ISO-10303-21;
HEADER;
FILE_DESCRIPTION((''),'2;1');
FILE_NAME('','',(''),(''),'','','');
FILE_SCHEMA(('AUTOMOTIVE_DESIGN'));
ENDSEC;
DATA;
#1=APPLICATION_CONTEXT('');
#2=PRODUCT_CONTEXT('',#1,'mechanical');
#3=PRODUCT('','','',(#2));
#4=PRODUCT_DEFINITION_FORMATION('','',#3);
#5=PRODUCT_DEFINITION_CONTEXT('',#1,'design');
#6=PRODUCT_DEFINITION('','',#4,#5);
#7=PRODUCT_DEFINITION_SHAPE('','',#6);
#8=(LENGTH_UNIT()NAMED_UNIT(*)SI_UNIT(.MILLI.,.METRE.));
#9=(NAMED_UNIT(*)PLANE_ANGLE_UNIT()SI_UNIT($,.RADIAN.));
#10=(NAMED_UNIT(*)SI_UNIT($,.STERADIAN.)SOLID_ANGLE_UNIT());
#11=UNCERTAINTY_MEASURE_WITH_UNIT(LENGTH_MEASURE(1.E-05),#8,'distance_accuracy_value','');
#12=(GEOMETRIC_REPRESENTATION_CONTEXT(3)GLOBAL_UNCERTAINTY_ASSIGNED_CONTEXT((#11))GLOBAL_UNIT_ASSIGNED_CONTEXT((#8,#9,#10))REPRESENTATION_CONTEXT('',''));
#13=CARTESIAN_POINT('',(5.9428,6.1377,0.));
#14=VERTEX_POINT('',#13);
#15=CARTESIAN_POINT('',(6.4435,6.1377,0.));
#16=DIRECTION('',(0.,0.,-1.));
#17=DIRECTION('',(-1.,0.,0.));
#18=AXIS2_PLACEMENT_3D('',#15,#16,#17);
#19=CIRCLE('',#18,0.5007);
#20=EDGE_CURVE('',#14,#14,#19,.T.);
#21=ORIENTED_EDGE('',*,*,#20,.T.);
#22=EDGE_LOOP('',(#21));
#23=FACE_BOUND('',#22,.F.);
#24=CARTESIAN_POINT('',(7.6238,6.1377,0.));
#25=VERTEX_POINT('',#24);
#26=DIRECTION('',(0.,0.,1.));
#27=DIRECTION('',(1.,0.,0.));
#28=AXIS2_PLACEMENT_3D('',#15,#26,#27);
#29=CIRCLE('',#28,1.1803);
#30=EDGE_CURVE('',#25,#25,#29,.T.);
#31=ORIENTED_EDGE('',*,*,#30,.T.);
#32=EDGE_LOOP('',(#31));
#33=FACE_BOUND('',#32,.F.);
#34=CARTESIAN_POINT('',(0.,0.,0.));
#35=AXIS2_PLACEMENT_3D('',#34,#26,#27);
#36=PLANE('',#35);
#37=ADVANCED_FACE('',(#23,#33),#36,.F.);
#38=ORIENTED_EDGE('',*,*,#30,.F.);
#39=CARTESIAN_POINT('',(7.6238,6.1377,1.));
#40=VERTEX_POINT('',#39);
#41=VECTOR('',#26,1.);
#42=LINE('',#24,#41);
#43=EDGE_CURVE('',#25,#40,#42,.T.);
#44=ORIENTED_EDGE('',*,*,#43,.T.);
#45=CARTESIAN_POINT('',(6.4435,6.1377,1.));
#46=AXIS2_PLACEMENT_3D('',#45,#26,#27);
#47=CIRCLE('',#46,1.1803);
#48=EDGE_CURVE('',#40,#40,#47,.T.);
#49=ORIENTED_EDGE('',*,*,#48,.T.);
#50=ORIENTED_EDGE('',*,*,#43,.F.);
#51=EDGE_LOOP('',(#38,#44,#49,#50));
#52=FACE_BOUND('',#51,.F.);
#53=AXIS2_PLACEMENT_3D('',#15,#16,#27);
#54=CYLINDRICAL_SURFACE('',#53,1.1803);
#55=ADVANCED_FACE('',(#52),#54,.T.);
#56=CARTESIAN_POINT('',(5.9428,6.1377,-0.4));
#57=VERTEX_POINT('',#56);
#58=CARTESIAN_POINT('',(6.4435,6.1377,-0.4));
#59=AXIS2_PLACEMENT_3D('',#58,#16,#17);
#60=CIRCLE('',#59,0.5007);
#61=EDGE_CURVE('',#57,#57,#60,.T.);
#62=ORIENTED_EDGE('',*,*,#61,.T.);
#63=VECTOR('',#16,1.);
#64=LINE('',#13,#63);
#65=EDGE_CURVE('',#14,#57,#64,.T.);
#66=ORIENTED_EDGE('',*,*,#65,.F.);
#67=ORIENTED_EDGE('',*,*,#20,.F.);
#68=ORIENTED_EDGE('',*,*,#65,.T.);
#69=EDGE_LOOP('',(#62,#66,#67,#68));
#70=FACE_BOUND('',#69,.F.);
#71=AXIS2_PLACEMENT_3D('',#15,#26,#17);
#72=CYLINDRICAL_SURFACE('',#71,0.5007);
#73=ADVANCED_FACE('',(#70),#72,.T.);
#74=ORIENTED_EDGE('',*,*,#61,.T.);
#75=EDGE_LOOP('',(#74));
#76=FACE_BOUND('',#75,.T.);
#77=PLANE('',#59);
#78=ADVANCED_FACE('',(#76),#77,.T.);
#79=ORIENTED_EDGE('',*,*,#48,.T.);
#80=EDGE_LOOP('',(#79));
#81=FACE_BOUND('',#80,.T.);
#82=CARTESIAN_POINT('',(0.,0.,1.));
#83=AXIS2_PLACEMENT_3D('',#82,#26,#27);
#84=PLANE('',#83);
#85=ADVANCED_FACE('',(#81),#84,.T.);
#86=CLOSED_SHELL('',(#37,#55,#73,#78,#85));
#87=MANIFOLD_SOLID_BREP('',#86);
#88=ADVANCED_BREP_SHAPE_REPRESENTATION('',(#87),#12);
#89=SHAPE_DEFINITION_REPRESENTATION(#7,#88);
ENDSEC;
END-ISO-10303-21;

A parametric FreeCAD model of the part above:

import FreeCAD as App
import Part
import Sketcher

V = App.Vector
Q = App.Units.Quantity

doc = App.newDocument("Part")
params = doc.addObject("Spreadsheet::Sheet", "Params")
for row, (alias, value) in enumerate([
    ("pad1_length", "1 mm"),
    ("pad2_length", "0.4 mm"),
], start=1):
    params.set(f"A{row}", alias)
    params.set(f"B{row}", "=" + value)
    params.setAlias(f"B{row}", alias)

body = doc.addObject("PartDesign::Body", "Body")

# Sketch on XY plane
sketch1 = body.newObject("Sketcher::SketchObject", "Sketch")
sketch1.AttachmentSupport = (doc.getObject("XY_Plane"), [""])
sketch1.MapMode = "FlatFace"
sketch1.addGeometry(Part.Circle(V(6.4435, 6.1377, 0), V(0, 0, 1), 1.1803), False)
sketch1.addConstraint([
    Sketcher.Constraint("Diameter", 0, Q("2.3606 mm")),
    Sketcher.Constraint("DistanceX", -1, 1, 0, 3, Q("6.4435 mm")),
    Sketcher.Constraint("DistanceY", -1, 1, 0, 3, Q("6.1377 mm")),
])
pad1 = body.newObject("PartDesign::Pad", "Pad")
pad1.Profile = sketch1
pad1.setExpression("Length", "Params.pad1_length")

# Sketch on XY plane
sketch2 = body.newObject("Sketcher::SketchObject", "Sketch001")
sketch2.AttachmentSupport = (doc.getObject("XY_Plane"), [""])
sketch2.MapMode = "FlatFace"
sketch2.addGeometry(Part.Circle(V(6.4435, 6.1377, 0), V(0, 0, 1), 0.5007), False)
sketch2.addConstraint([
    Sketcher.Constraint("Diameter", 0, Q("1.0014 mm")),
    Sketcher.Constraint("DistanceX", -1, 1, 0, 3, Q("6.4435 mm")),
    Sketcher.Constraint("DistanceY", -1, 1, 0, 3, Q("6.1377 mm")),
])
pad2 = body.newObject("PartDesign::Pad", "Pad001")
pad2.Profile = sketch2
pad2.setExpression("Length", "Params.pad2_length")
pad2.Reversed = True

doc.recompute()
